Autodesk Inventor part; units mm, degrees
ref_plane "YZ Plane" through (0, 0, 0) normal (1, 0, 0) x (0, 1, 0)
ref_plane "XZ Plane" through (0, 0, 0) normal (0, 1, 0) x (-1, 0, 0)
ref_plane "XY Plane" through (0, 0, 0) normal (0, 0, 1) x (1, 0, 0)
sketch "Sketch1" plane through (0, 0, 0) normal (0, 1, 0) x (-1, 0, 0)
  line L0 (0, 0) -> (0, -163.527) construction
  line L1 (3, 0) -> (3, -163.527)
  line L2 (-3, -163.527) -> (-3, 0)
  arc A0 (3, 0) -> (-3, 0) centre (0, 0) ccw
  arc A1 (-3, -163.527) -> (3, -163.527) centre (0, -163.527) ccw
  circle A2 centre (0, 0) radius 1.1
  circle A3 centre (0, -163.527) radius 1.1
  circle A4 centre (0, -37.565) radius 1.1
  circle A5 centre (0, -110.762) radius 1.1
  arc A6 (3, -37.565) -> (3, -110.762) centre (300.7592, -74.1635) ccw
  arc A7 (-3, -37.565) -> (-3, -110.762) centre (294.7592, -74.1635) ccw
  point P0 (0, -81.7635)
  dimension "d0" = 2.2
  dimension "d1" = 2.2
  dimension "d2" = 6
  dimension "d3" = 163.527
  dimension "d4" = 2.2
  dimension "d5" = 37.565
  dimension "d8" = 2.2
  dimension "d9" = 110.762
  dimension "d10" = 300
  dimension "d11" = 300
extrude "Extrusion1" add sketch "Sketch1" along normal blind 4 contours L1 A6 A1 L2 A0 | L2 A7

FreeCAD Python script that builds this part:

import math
import FreeCAD as App
import Part
import Sketcher

V = App.Vector
Q = App.Units.Quantity

doc = App.newDocument("Part")
body = doc.addObject("PartDesign::Body", "Body")

# Sketch on XZ plane
sketch1 = doc.addObject("Sketcher::SketchObject", "Sketch")
body.addObject(sketch1)
sketch1.AttachmentSupport = (doc.XZ_Plane, [""])
sketch1.MapMode = "FlatFace"
sketch1.addGeometry([
    Part.LineSegment(V(-3, -37.565, 0), V(-3, 0, 0)),  # 0
    Part.ArcOfCircle(Part.Circle(V(0, 0, 0), V(0, 0, 1), 3), math.radians(0), math.radians(180)),  # 1
    Part.LineSegment(V(3, 0, 0), V(3, -37.565, 0)),  # 2
    Part.ArcOfCircle(Part.Circle(V(-294.7592, -74.1635, 0), V(0, 0, 1), 299.999986), math.radians(-7.007254), math.radians(7.007254)),  # 3
    Part.LineSegment(V(3, -110.762, 0), V(3, -163.527, 0)),  # 4
    Part.ArcOfCircle(Part.Circle(V(0, -163.527, 0), V(0, 0, 1), 3), math.radians(180), math.radians(360)),  # 5
    Part.LineSegment(V(-3, -163.527, 0), V(-3, -110.762, 0)),  # 6
    Part.ArcOfCircle(Part.Circle(V(-300.7592, -74.1635, 0), V(0, 0, 1), 299.999986), math.radians(-7.007254), math.radians(7.007254)),  # 7
    Part.Circle(V(0, -163.527, 0), V(0, 0, 1), 1.1),  # 8
    Part.Circle(V(0, -110.762, 0), V(0, 0, 1), 1.1),  # 9
    Part.Circle(V(0, -37.565, 0), V(0, 0, 1), 1.1),  # 10
    Part.Circle(V(0, 0, 0), V(0, 0, 1), 1.1),  # 11
], False)
sketch1.addConstraint([
    Sketcher.Constraint("Tangent", 0, 2, 1, 2),
    Sketcher.Constraint("Tangent", 1, 1, 2, 1),
    Sketcher.Constraint("Coincident", 2, 2, 3, 2),
    Sketcher.Constraint("Coincident", 3, 1, 4, 1),
    Sketcher.Constraint("Tangent", 4, 2, 5, 2),
    Sketcher.Constraint("Tangent", 5, 1, 6, 1),
    Sketcher.Constraint("Coincident", 6, 2, 7, 1),
    Sketcher.Constraint("Coincident", 7, 2, 0, 1),
    Sketcher.Constraint("Vertical", 0),
    Sketcher.Constraint("Vertical", 2),
    Sketcher.Constraint("Vertical", 4),
    Sketcher.Constraint("Vertical", 6),
    Sketcher.Constraint("Coincident", 1, 3, -1, 1),
    Sketcher.Constraint("Coincident", 11, 3, -1, 1),
    Sketcher.Constraint("Coincident", 8, 3, 5, 3),
    Sketcher.Constraint("Equal", 1, 5),
    Sketcher.Constraint("Equal", 3, 7),
    Sketcher.Constraint("Equal", 8, 9),
    Sketcher.Constraint("Equal", 9, 10),
    Sketcher.Constraint("Equal", 10, 11),
    Sketcher.Constraint("Symmetric", 3, 1, 6, 2, -2),
    Sketcher.Constraint("PointOnObject", 9, 3, -2),
    Sketcher.Constraint("PointOnObject", 10, 3, -2),
    Sketcher.Constraint("Horizontal", 3, 3, 7, 3),
    Sketcher.Constraint("Horizontal", 10, 3, 2, 2),
    Sketcher.Constraint("Horizontal", 9, 3, 3, 1),
    Sketcher.Constraint("Radius", 1, Q("3 mm")),
    Sketcher.Constraint("Radius", 3, Q("300 mm")),
    Sketcher.Constraint("Diameter", 8, Q("2.2 mm")),
    Sketcher.Constraint("DistanceY", 0, 1, 0, 2, Q("37.565 mm")),
    Sketcher.Constraint("DistanceY", 5, 3, -1, 1, Q("163.527 mm")),
    Sketcher.Constraint("DistanceY", 9, 3, -1, 1, Q("110.762 mm")),
])
pad1 = doc.addObject("PartDesign::Pad", "Pad")
body.addObject(pad1)
pad1.Profile = sketch1
pad1.Length = 4
pad1.Reversed = True

doc.recompute()
